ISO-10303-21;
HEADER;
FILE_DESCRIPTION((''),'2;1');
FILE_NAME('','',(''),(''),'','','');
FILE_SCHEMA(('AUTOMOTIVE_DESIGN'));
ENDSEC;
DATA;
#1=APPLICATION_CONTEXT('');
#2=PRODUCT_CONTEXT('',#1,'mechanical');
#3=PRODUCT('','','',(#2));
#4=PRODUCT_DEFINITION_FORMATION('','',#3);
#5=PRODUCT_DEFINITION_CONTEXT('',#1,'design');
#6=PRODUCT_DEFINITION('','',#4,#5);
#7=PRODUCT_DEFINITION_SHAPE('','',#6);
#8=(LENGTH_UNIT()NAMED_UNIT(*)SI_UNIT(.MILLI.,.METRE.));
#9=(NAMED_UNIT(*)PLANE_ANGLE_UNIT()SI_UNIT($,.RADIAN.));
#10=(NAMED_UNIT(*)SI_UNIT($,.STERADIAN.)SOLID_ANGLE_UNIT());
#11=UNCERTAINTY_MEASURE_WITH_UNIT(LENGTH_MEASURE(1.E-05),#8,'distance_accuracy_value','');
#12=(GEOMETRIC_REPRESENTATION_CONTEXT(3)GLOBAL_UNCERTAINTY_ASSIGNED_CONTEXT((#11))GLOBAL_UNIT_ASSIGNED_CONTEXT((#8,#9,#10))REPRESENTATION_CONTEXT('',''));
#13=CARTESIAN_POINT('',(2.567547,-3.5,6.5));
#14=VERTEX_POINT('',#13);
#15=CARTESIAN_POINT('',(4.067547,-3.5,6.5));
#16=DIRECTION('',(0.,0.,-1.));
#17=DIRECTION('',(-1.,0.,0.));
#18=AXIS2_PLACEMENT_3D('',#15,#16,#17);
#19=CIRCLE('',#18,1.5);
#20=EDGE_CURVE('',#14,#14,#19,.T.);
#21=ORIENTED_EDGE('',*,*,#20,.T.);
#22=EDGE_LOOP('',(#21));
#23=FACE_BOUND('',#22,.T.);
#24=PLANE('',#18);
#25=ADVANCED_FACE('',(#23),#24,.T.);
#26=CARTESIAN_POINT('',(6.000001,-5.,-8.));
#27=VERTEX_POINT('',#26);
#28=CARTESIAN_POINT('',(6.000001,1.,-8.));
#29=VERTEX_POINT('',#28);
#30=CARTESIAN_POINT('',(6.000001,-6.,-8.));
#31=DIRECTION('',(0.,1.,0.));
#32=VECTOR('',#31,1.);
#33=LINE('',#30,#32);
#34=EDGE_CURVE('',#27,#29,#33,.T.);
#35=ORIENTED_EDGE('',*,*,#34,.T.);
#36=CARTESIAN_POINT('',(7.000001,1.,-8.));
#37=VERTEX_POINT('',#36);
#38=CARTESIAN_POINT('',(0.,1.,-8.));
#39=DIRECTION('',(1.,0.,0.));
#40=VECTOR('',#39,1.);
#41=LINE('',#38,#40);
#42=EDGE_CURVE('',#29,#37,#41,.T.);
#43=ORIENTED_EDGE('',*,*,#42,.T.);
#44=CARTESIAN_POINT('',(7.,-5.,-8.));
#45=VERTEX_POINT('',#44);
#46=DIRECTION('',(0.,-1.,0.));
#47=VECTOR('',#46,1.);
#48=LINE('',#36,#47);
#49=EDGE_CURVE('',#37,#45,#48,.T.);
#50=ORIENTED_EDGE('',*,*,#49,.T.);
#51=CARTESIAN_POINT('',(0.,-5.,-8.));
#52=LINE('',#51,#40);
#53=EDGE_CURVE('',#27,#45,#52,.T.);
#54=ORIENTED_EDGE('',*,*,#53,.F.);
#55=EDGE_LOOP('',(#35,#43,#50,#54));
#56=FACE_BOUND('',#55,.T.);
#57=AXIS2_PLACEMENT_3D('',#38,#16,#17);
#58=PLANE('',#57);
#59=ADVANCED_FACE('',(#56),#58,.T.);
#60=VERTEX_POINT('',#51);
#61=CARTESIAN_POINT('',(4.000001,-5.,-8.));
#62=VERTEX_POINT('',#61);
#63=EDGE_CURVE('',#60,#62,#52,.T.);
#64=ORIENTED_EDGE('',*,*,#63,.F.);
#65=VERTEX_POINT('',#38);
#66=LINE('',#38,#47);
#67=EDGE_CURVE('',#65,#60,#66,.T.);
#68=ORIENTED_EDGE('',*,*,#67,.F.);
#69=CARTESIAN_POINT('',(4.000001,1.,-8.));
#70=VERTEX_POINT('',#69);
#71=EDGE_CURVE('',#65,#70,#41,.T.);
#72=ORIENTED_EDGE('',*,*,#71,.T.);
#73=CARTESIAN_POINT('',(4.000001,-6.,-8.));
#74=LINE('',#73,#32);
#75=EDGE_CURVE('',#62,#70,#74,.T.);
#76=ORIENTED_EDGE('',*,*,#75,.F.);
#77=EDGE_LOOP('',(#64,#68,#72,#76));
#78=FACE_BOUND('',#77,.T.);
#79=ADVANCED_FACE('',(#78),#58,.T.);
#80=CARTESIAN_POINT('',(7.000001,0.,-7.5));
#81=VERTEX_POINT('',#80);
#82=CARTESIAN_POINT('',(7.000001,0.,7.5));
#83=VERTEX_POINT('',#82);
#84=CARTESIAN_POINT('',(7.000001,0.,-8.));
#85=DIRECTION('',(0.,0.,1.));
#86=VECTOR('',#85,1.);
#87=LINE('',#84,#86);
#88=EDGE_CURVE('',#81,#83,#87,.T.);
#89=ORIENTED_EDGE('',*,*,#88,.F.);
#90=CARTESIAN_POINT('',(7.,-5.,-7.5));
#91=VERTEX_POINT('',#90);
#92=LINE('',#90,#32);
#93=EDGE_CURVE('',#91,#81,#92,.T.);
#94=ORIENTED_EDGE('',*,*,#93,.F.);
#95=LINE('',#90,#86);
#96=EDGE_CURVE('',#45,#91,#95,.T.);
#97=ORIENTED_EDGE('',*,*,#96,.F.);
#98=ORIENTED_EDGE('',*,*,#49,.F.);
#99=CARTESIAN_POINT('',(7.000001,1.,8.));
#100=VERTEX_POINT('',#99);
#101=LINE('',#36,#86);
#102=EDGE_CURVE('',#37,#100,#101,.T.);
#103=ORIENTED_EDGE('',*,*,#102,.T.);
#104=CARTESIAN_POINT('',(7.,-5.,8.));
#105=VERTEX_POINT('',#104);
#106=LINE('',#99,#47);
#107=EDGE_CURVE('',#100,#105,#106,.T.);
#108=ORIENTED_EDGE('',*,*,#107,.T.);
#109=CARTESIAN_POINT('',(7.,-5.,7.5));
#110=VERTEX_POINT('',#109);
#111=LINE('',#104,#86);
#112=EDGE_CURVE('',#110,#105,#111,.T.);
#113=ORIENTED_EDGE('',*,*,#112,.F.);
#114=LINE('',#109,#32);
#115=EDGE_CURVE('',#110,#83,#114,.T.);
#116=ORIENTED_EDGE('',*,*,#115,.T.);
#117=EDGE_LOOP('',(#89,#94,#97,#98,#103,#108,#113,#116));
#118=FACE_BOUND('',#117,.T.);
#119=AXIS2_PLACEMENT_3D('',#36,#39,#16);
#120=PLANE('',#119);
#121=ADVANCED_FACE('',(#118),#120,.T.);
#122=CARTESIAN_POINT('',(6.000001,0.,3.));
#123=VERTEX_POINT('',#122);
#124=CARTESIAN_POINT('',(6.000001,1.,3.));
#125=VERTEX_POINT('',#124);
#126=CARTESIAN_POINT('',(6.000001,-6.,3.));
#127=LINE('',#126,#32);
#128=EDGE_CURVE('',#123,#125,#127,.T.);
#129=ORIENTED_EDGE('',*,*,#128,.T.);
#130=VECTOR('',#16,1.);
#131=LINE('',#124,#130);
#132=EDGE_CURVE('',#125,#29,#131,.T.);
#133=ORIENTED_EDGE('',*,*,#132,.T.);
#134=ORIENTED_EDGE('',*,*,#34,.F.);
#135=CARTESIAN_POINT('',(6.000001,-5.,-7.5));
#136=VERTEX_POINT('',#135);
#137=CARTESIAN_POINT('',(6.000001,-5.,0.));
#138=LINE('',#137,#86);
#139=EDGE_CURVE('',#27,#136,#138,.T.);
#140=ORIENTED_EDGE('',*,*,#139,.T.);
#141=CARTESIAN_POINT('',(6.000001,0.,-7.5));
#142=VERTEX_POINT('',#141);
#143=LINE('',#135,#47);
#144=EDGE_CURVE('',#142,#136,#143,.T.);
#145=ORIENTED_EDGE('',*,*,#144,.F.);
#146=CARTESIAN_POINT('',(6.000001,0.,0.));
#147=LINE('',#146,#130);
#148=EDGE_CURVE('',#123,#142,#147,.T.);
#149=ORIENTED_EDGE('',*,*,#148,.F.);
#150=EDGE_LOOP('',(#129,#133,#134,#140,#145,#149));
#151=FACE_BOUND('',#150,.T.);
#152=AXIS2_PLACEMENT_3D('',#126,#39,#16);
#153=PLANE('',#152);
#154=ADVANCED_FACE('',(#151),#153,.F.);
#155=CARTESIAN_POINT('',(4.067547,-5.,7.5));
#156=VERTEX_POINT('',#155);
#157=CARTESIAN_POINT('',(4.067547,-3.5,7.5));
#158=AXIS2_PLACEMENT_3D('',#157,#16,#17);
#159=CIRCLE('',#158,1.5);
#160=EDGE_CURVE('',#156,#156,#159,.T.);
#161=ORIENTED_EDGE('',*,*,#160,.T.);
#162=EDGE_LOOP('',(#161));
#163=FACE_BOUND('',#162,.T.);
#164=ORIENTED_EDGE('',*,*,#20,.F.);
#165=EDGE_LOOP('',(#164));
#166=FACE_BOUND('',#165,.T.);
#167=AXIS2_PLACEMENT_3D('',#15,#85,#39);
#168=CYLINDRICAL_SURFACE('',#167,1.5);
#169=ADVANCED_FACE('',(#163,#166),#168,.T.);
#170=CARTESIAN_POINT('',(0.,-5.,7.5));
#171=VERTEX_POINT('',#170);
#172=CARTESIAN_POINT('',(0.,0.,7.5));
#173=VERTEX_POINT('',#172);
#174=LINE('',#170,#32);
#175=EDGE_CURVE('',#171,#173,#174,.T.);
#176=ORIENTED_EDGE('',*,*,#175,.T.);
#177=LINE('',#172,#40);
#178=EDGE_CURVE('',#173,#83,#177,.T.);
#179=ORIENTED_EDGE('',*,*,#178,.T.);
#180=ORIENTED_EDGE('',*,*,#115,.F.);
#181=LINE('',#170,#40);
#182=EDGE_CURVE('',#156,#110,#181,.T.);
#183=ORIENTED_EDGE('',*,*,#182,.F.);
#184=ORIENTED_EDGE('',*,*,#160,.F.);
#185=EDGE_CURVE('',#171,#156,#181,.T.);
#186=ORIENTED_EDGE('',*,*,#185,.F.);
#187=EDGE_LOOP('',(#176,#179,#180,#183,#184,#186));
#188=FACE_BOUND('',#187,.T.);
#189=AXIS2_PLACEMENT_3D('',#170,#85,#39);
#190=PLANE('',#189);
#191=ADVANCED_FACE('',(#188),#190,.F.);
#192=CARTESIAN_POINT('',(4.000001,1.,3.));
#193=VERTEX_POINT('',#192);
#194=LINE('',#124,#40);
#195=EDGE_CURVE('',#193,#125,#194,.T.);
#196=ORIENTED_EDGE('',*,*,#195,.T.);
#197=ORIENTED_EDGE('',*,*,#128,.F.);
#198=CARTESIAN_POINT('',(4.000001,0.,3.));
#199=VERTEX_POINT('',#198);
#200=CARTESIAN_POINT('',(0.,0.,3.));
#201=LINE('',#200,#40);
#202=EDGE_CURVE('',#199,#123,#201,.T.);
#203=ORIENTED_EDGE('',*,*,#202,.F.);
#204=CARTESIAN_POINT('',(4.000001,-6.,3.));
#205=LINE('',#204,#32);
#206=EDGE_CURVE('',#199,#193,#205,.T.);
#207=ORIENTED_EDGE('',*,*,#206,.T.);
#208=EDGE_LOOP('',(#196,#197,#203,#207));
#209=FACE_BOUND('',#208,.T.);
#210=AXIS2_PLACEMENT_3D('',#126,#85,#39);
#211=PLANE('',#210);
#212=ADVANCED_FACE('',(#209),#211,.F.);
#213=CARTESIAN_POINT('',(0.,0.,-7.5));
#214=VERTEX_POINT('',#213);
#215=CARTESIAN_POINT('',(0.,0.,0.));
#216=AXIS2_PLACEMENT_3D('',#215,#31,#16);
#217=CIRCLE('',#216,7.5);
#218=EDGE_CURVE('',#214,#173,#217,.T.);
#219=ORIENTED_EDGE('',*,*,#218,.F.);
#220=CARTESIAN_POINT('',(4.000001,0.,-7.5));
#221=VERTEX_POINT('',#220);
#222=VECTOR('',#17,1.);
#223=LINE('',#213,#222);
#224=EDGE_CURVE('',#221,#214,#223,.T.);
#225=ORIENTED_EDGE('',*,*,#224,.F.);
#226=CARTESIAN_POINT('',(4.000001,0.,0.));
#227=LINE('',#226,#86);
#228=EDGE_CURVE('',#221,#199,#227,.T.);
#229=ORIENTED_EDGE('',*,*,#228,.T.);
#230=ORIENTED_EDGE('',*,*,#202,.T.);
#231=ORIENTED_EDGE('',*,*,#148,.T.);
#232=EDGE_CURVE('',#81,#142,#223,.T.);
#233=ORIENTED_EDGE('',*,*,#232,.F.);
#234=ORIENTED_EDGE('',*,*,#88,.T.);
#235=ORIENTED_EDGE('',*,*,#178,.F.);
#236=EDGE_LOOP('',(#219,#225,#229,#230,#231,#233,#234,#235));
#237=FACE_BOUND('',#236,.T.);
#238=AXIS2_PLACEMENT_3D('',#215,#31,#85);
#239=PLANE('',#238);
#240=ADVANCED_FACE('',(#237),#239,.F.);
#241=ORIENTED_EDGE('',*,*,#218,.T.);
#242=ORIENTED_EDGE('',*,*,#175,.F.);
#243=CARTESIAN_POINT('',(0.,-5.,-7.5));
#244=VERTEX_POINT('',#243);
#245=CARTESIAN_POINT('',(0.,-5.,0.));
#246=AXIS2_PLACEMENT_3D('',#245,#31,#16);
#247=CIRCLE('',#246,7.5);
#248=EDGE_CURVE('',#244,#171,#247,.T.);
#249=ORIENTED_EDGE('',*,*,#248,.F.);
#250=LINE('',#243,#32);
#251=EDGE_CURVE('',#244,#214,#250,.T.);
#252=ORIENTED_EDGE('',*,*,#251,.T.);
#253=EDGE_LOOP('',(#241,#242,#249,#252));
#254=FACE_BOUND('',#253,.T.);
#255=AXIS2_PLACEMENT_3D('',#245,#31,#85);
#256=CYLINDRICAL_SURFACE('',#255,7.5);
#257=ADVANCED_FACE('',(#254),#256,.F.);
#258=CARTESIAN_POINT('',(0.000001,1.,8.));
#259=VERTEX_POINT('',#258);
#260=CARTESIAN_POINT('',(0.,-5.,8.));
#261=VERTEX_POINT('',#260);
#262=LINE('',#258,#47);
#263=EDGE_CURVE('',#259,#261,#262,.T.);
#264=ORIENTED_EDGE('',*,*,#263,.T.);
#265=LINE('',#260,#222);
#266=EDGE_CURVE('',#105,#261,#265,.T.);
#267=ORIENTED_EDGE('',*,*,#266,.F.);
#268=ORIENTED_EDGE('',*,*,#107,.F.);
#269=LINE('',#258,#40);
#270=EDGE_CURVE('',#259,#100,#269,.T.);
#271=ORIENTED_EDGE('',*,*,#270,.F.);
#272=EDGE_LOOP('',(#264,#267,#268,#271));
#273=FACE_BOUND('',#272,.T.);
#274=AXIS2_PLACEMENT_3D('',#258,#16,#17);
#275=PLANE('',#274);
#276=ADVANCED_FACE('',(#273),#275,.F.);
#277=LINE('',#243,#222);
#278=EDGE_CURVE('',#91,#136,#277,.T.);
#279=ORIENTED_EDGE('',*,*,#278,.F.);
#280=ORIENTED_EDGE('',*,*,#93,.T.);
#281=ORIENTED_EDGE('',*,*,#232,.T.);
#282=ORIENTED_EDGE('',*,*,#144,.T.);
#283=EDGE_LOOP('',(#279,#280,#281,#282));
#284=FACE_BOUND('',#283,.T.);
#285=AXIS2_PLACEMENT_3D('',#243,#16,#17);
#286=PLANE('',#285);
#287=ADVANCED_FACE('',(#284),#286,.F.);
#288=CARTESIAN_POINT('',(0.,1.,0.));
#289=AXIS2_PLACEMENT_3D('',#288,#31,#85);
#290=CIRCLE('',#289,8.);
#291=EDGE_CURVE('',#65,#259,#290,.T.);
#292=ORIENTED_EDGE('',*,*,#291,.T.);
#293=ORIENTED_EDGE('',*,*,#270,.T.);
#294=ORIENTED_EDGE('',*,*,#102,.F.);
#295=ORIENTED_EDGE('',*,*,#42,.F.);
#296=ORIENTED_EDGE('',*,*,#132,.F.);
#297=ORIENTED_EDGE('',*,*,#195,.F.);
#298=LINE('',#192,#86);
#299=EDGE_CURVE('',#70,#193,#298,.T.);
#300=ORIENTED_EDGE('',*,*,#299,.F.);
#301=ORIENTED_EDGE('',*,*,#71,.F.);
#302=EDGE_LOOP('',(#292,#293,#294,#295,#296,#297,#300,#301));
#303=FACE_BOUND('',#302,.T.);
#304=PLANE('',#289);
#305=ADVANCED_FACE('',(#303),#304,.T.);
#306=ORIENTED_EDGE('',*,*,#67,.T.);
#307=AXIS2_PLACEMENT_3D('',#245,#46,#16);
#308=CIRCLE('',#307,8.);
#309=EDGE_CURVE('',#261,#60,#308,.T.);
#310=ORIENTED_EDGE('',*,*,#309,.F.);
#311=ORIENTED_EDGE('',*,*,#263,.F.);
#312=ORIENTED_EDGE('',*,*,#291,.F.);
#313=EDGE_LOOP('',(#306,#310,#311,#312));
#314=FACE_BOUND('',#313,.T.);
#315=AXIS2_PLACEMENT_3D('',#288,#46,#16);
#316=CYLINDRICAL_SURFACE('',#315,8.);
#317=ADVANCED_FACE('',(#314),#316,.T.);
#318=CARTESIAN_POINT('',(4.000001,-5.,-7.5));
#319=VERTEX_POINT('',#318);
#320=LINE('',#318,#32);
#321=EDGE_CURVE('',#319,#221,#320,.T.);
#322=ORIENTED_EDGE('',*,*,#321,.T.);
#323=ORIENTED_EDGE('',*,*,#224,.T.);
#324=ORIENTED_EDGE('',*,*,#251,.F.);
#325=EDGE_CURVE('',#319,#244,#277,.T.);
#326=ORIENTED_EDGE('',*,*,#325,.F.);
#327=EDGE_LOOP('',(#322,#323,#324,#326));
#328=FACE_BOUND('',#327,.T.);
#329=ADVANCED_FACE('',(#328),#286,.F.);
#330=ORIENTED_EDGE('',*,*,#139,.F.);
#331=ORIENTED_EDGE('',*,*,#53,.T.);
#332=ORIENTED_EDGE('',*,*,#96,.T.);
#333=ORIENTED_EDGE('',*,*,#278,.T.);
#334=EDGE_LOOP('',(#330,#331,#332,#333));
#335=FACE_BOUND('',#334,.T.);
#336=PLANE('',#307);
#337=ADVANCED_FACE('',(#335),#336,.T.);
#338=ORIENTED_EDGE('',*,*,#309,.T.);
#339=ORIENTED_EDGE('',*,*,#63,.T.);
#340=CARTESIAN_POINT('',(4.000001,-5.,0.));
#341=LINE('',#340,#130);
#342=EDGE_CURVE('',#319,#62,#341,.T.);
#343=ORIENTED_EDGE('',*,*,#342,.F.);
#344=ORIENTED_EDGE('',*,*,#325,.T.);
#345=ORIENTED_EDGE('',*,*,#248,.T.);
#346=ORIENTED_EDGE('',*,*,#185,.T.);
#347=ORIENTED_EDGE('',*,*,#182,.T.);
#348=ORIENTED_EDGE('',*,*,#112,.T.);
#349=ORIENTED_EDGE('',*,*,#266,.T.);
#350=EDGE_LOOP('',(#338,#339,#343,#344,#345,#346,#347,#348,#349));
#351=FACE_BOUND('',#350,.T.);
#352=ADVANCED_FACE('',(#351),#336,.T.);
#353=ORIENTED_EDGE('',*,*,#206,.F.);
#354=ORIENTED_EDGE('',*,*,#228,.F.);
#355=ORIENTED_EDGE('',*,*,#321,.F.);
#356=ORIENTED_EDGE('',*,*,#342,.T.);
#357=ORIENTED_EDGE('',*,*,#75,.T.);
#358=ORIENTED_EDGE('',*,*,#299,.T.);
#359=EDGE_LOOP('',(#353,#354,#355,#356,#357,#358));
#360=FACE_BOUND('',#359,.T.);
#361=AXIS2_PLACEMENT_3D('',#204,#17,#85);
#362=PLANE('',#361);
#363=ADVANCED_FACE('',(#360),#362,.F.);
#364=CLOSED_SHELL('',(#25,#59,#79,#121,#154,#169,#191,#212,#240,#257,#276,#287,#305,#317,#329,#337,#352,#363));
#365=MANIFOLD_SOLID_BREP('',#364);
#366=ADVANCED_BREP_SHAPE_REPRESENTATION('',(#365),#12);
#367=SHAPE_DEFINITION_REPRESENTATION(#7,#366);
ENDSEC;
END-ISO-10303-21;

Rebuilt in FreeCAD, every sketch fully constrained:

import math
import FreeCAD as App
import Part
import Sketcher
from FreeCAD import Vector

doc = App.newDocument("Part")
body = doc.addObject("PartDesign::Body", "Body")

# Sketch on XZ plane
sketch1 = doc.addObject("Sketcher::SketchObject", "Sketch")
body.addObject(sketch1)
sketch1.AttachmentSupport = (doc.XZ_Plane, [""])
sketch1.MapMode = "FlatFace"
sketch1.addGeometry(Part.LineSegment(Vector(7, -8, 0), Vector(0, -8, 0)), False)
sketch1.addGeometry(Part.ArcOfCircle(Part.Circle(Vector(0, 0, 0), Vector(0, 0, 1), 8), math.radians(90), math.radians(270)), False)
sketch1.addGeometry(Part.LineSegment(Vector(0, 8, 0), Vector(7, 8, 0)), False)
sketch1.addGeometry(Part.LineSegment(Vector(7, 8, 0), Vector(7, -8, 0)), False)
sketch1.addConstraint(Sketcher.Constraint("Tangent", 0, 2, 1, 2))
sketch1.addConstraint(Sketcher.Constraint("Tangent", 1, 1, 2, 1))
sketch1.addConstraint(Sketcher.Constraint("Coincident", 2, 2, 3, 1))
sketch1.addConstraint(Sketcher.Constraint("Coincident", 3, 2, 0, 1))
sketch1.addConstraint(Sketcher.Constraint("Horizontal", 0))
sketch1.addConstraint(Sketcher.Constraint("Horizontal", 2))
sketch1.addConstraint(Sketcher.Constraint("Vertical", 3))
sketch1.addConstraint(Sketcher.Constraint("Coincident", 1, 3, -1, 1))
sketch1.addConstraint(Sketcher.Constraint("Radius", 1, 8.0))
sketch1.addConstraint(Sketcher.Constraint("DistanceX", 0, 2, 0, 1, 7.000001))
pad1 = doc.addObject("PartDesign::Pad", "Pad")
body.addObject(pad1)
pad1.Profile = sketch1
pad1.Length = 1
pad1.Reversed = True

# Sketch on XZ plane
sketch2 = doc.addObject("Sketcher::SketchObject", "Sketch001")
body.addObject(sketch2)
sketch2.AttachmentSupport = (doc.XZ_Plane, [""])
sketch2.MapMode = "FlatFace"
sketch2.AttachmentOffset = App.Placement(Vector(0, 0, 5), App.Rotation())
sketch2.addGeometry(Part.LineSegment(Vector(7, 8, 0), Vector(0, 8, 0)), False)
sketch2.addGeometry(Part.ArcOfCircle(Part.Circle(Vector(0, 0, 0), Vector(0, 0, 1), 8), math.radians(90), math.radians(270)), False)
sketch2.addGeometry(Part.LineSegment(Vector(0, -8, 0), Vector(7, -8, 0)), False)
sketch2.addGeometry(Part.LineSegment(Vector(7, -8, 0), Vector(7, -7.5, 0)), False)
sketch2.addGeometry(Part.LineSegment(Vector(7, -7.5, 0), Vector(0, -7.5, 0)), False)
sketch2.addGeometry(Part.ArcOfCircle(Part.Circle(Vector(0, 0, 0), Vector(0, 0, 1), 7.5), math.radians(90), math.radians(270)), False)
sketch2.addGeometry(Part.LineSegment(Vector(0, 7.5, 0), Vector(7, 7.5, 0)), False)
sketch2.addGeometry(Part.LineSegment(Vector(7, 7.5, 0), Vector(7, 8, 0)), False)
sketch2.addConstraint(Sketcher.Constraint("Tangent", 0, 2, 1, 1))
sketch2.addConstraint(Sketcher.Constraint("Tangent", 1, 2, 2, 1))
sketch2.addConstraint(Sketcher.Constraint("Coincident", 2, 2, 3, 1))
sketch2.addConstraint(Sketcher.Constraint("Coincident", 3, 2, 4, 1))
sketch2.addConstraint(Sketcher.Constraint("Tangent", 4, 2, 5, 2))
sketch2.addConstraint(Sketcher.Constraint("Tangent", 5, 1, 6, 1))
sketch2.addConstraint(Sketcher.Constraint("Coincident", 6, 2, 7, 1))
sketch2.addConstraint(Sketcher.Constraint("Coincident", 7, 2, 0, 1))
sketch2.addConstraint(Sketcher.Constraint("Horizontal", 0))
sketch2.addConstraint(Sketcher.Constraint("Horizontal", 2))
sketch2.addConstraint(Sketcher.Constraint("Vertical", 3))
sketch2.addConstraint(Sketcher.Constraint("Horizontal", 4))
sketch2.addConstraint(Sketcher.Constraint("Horizontal", 6))
sketch2.addConstraint(Sketcher.Constraint("Vertical", 7))
sketch2.addConstraint(Sketcher.Constraint("Coincident", 1, 3, -1, 1))
sketch2.addConstraint(Sketcher.Constraint("Coincident", 5, 3, -1, 1))
sketch2.addConstraint(Sketcher.Constraint("Vertical", 3, 2, 6, 2))
sketch2.addConstraint(Sketcher.Constraint("Radius", 1, 8.0))
sketch2.addConstraint(Sketcher.Constraint("Radius", 5, 7.5))
sketch2.addConstraint(Sketcher.Constraint("DistanceX", 0, 2, 0, 1, 7.0))
pad2 = doc.addObject("PartDesign::Pad", "Pad001")
body.addObject(pad2)
pad2.Profile = sketch2
pad2.Length = 5
pad2.Reversed = True

# Sketch on XZ plane
sketch3 = doc.addObject("Sketcher::SketchObject", "Sketch002")
body.addObject(sketch3)
sketch3.AttachmentSupport = (doc.XZ_Plane, [""])
sketch3.MapMode = "FlatFace"
sketch3.AttachmentOffset = App.Placement(Vector(0, 0, -1), App.Rotation())
sketch3.addGeometry(Part.LineSegment(Vector(4, -8, 0), Vector(4, 3, 0)), False)
sketch3.addGeometry(Part.LineSegment(Vector(4, 3, 0), Vector(6, 3, 0)), False)
sketch3.addGeometry(Part.LineSegment(Vector(6, 3, 0), Vector(6, -8, 0)), False)
sketch3.addGeometry(Part.LineSegment(Vector(6, -8, 0), Vector(4, -8, 0)), False)
sketch3.addConstraint(Sketcher.Constraint("Coincident", 0, 2, 1, 1))
sketch3.addConstraint(Sketcher.Constraint("Coincident", 1, 2, 2, 1))
sketch3.addConstraint(Sketcher.Constraint("Coincident", 2, 2, 3, 1))
sketch3.addConstraint(Sketcher.Constraint("Coincident", 3, 2, 0, 1))
sketch3.addConstraint(Sketcher.Constraint("Vertical", 0))
sketch3.addConstraint(Sketcher.Constraint("Horizontal", 1))
sketch3.addConstraint(Sketcher.Constraint("Vertical", 2))
sketch3.addConstraint(Sketcher.Constraint("Horizontal", 3))
sketch3.addConstraint(Sketcher.Constraint("DistanceX", 1, 1, 1, 2, 2.0))
sketch3.addConstraint(Sketcher.Constraint("DistanceY", 0, 1, 0, 2, 11.0))
sketch3.addConstraint(Sketcher.Constraint("DistanceX", -1, 1, 0, 2, 4.000001))
sketch3.addConstraint(Sketcher.Constraint("DistanceY", -1, 1, 0, 2, 3.0))
pocket1 = doc.addObject("PartDesign::Pocket", "Pocket")
body.addObject(pocket1)
pocket1.Profile = sketch3
pocket1.Length = 7
pocket1.Reversed = True

# Sketch on XY plane
sketch4 = doc.addObject("Sketcher::SketchObject", "Sketch003")
body.addObject(sketch4)
sketch4.AttachmentSupport = (doc.XY_Plane, [""])
sketch4.MapMode = "FlatFace"
sketch4.AttachmentOffset = App.Placement(Vector(0, 0, 7.5), App.Rotation())
sketch4.addGeometry(Part.Circle(Vector(4.1, -3.5, 0), Vector(0, 0, 1), 1.5), False)
sketch4.addConstraint(Sketcher.Constraint("Diameter", 0, 3.0))
sketch4.addConstraint(Sketcher.Constraint("DistanceY", 0, 3, -1, 1, 3.5))
sketch4.addConstraint(Sketcher.Constraint("DistanceX", -1, 1, 0, 3, 4.067547))
pad3 = doc.addObject("PartDesign::Pad", "Pad002")
body.addObject(pad3)
pad3.Profile = sketch4
pad3.Length = 1
pad3.Reversed = True

doc.recompute()
